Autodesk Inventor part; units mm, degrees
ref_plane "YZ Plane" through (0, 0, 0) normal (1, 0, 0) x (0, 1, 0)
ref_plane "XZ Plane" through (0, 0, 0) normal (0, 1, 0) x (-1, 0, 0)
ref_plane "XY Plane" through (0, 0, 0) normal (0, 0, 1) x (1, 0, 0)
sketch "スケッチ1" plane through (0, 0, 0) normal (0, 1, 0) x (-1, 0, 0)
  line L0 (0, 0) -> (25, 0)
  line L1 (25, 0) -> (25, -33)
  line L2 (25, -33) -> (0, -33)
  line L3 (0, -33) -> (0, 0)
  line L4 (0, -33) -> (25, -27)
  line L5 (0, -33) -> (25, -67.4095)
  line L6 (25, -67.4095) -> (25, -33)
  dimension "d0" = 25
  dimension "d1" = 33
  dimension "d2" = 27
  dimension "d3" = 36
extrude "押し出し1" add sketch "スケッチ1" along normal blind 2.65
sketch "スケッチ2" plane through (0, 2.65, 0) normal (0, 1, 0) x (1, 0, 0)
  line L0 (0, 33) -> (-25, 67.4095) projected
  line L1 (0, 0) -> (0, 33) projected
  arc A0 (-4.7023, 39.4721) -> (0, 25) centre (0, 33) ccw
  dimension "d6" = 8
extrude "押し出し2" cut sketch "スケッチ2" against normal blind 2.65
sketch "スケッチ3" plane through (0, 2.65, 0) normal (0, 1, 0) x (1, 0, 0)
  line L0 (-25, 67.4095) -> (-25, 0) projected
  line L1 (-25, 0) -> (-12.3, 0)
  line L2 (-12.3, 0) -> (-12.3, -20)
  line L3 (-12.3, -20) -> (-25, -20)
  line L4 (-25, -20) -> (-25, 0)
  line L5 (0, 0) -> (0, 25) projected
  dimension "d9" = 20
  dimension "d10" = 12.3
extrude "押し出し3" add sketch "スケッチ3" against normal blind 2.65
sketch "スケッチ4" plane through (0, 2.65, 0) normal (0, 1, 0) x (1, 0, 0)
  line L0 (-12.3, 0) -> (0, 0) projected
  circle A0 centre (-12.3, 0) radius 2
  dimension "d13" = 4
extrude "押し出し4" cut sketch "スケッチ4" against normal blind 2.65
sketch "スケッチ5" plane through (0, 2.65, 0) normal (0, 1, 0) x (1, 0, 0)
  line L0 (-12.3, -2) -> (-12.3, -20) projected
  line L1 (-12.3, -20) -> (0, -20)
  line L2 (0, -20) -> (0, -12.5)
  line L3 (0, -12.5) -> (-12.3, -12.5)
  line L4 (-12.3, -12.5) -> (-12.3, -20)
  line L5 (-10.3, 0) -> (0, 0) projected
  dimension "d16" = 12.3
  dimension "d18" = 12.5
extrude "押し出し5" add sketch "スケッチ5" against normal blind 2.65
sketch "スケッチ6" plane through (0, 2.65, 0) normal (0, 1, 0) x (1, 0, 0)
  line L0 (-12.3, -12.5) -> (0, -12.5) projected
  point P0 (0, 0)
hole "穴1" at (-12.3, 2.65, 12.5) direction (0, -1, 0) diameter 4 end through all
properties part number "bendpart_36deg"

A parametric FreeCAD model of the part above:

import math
import FreeCAD as App
import Part
import Sketcher
Q = App.Units.Quantity


def add_polygon(sketch, points):
    """Adds a closed chain of lines whose ends are joined by coincident constraints."""
    first, n = sketch.GeometryCount, len(points)
    for a, b in zip(points, points[1:] + points[:1]):
        sketch.addGeometry(Part.LineSegment(App.Vector(*a, 0), App.Vector(*b, 0)), False)
    for i in range(n):
        sketch.addConstraint(Sketcher.Constraint("Coincident", first + i, 2, first + (i + 1) % n, 1))

doc = App.newDocument("Part")
body = doc.addObject("PartDesign::Body", "Body")

# Sketch on XZ plane
sketch1 = body.newObject("Sketcher::SketchObject", "Sketch")
sketch1.AttachmentSupport = (doc.getObject("XZ_Plane"), [""])
sketch1.MapMode = "FlatFace"
add_polygon(sketch1, [(-25, 0), (0, 0), (0, -33), (-25, -67.4095)])  # lines 0-3
sketch1.addConstraint(Sketcher.Constraint("Horizontal", 0))
sketch1.addConstraint(Sketcher.Constraint("Vertical", 1))
sketch1.addConstraint(Sketcher.Constraint("Vertical", 3))
sketch1.addConstraint(Sketcher.Constraint("Coincident", 0, 2, -1, 1))
sketch1.addConstraint(Sketcher.Constraint("DistanceX", 0, 1, 0, 2, Q("25 mm")))
sketch1.addConstraint(Sketcher.Constraint("DistanceY", 1, 2, 1, 1, Q("33 mm")))
sketch1.addConstraint(Sketcher.Constraint("Angle", 2, Q("-126 deg")))
pad1 = body.newObject("PartDesign::Pad", "Pad")
pad1.Profile = sketch1
pad1.Length = 2.65
pad1.Reversed = True

# Sketch on XZ plane
sketch2 = body.newObject("Sketcher::SketchObject", "Sketch001")
sketch2.AttachmentSupport = (doc.getObject("XZ_Plane"), [""])
sketch2.MapMode = "FlatFace"
sketch2.AttachmentOffset = App.Placement(App.Vector(0, 0, -2.65), App.Rotation())
sketch2.addGeometry(Part.LineSegment(App.Vector(0, -25, 0), App.Vector(0, -33, 0)), False)
sketch2.addGeometry(Part.LineSegment(App.Vector(0, -33, 0), App.Vector(-4.702275, -39.472118, 0)), False)
sketch2.addGeometry(Part.ArcOfCircle(Part.Circle(App.Vector(0, -33, 0), App.Vector(0, 0, 1), 7.999981), math.radians(90), math.radians(233.999744)), False)
sketch2.addConstraint(Sketcher.Constraint("Coincident", 0, 2, 1, 1))
sketch2.addConstraint(Sketcher.Constraint("Coincident", 1, 2, 2, 2))
sketch2.addConstraint(Sketcher.Constraint("Coincident", 2, 1, 0, 1))
sketch2.addConstraint(Sketcher.Constraint("Vertical", 0))
sketch2.addConstraint(Sketcher.Constraint("Coincident", 0, 2, 2, 3))
sketch2.addConstraint(Sketcher.Constraint("PointOnObject", 2, 3, -2))
sketch2.addConstraint(Sketcher.Constraint("Radius", 2, Q("8 mm")))
sketch2.addConstraint(Sketcher.Constraint("Angle", 1, Q("-126 deg")))
sketch2.addConstraint(Sketcher.Constraint("DistanceY", 2, 3, -1, 1, Q("33 mm")))
pocket1 = body.newObject("PartDesign::Pocket", "Pocket")
pocket1.Profile = sketch2
pocket1.Length = 2.65
pocket1.Reversed = True

# Sketch on XZ plane
sketch3 = body.newObject("Sketcher::SketchObject", "Sketch002")
sketch3.AttachmentSupport = (doc.getObject("XZ_Plane"), [""])
sketch3.MapMode = "FlatFace"
sketch3.AttachmentOffset = App.Placement(App.Vector(0, 0, -2.65), App.Rotation())
add_polygon(sketch3, [(-12.3, 0), (-25, 0), (-25, 20), (-12.3, 20)])  # lines 0-3
sketch3.addConstraint(Sketcher.Constraint("Horizontal", 0))
sketch3.addConstraint(Sketcher.Constraint("Vertical", 1))
sketch3.addConstraint(Sketcher.Constraint("Horizontal", 2))
sketch3.addConstraint(Sketcher.Constraint("Vertical", 3))
sketch3.addConstraint(Sketcher.Constraint("PointOnObject", 0, 2, -1))
sketch3.addConstraint(Sketcher.Constraint("DistanceY", 1, 1, 1, 2, Q("20 mm")))
sketch3.addConstraint(Sketcher.Constraint("DistanceX", 2, 2, -1, 1, Q("12.3 mm")))
sketch3.addConstraint(Sketcher.Constraint("DistanceX", 0, 2, 0, 1, Q("12.7 mm")))
pad2 = body.newObject("PartDesign::Pad", "Pad001")
pad2.Profile = sketch3
pad2.Length = 2.65

# Sketch on XZ plane
sketch4 = body.newObject("Sketcher::SketchObject", "Sketch003")
sketch4.AttachmentSupport = (doc.getObject("XZ_Plane"), [""])
sketch4.MapMode = "FlatFace"
sketch4.AttachmentOffset = App.Placement(App.Vector(0, 0, -2.65), App.Rotation())
sketch4.addGeometry(Part.Circle(App.Vector(-12.3, 0, 0), App.Vector(0, 0, 1), 2), False)
sketch4.addConstraint(Sketcher.Constraint("PointOnObject", 0, 3, -1))
sketch4.addConstraint(Sketcher.Constraint("Diameter", 0, Q("4 mm")))
sketch4.addConstraint(Sketcher.Constraint("DistanceX", 0, 3, -1, 1, Q("12.3 mm")))
pocket2 = body.newObject("PartDesign::Pocket", "Pocket001")
pocket2.Profile = sketch4
pocket2.Length = 2.65
pocket2.Reversed = True

# Sketch on XZ plane
sketch5 = body.newObject("Sketcher::SketchObject", "Sketch004")
sketch5.AttachmentSupport = (doc.getObject("XZ_Plane"), [""])
sketch5.MapMode = "FlatFace"
sketch5.AttachmentOffset = App.Placement(App.Vector(0, 0, -2.65), App.Rotation())
add_polygon(sketch5, [(0, 12.5), (-12.3, 12.5), (-12.3, 20), (0, 20)])  # lines 0-3
sketch5.addConstraint(Sketcher.Constraint("Horizontal", 0))
sketch5.addConstraint(Sketcher.Constraint("Vertical", 1))
sketch5.addConstraint(Sketcher.Constraint("Horizontal", 2))
sketch5.addConstraint(Sketcher.Constraint("Vertical", 3))
sketch5.addConstraint(Sketcher.Constraint("PointOnObject", 2, 2, -2))
sketch5.addConstraint(Sketcher.Constraint("DistanceX", 0, 2, 0, 1, Q("12.3 mm")))
sketch5.addConstraint(Sketcher.Constraint("DistanceY", -1, 1, 0, 2, Q("12.5 mm")))
sketch5.addConstraint(Sketcher.Constraint("DistanceY", 1, 1, 1, 2, Q("7.5 mm")))
pad3 = body.newObject("PartDesign::Pad", "Pad002")
pad3.Profile = sketch5
pad3.Length = 2.65

# Sketch on XZ plane
sketch6 = body.newObject("Sketcher::SketchObject", "Sketch005")
sketch6.AttachmentSupport = (doc.getObject("XZ_Plane"), [""])
sketch6.MapMode = "FlatFace"
sketch6.AttachmentOffset = App.Placement(App.Vector(0, 0, -2.65), App.Rotation())
sketch6.addGeometry(Part.Circle(App.Vector(-12.3, 12.5, 0), App.Vector(0, 0, 1), 2), False)
sketch6.addConstraint(Sketcher.Constraint("Diameter", 0, Q("4 mm")))
sketch6.addConstraint(Sketcher.Constraint("DistanceX", 0, 3, -1, 1, Q("12.3 mm")))
sketch6.addConstraint(Sketcher.Constraint("DistanceY", -1, 1, 0, 3, Q("12.5 mm")))
doc.recompute()
hole = body.newObject("PartDesign::Hole", "Hole")
hole.Profile = sketch6
hole.ThreadType = "None"
hole.Diameter = 4
hole.DepthType = "ThroughAll"
hole.Reversed = True

doc.recompute()
